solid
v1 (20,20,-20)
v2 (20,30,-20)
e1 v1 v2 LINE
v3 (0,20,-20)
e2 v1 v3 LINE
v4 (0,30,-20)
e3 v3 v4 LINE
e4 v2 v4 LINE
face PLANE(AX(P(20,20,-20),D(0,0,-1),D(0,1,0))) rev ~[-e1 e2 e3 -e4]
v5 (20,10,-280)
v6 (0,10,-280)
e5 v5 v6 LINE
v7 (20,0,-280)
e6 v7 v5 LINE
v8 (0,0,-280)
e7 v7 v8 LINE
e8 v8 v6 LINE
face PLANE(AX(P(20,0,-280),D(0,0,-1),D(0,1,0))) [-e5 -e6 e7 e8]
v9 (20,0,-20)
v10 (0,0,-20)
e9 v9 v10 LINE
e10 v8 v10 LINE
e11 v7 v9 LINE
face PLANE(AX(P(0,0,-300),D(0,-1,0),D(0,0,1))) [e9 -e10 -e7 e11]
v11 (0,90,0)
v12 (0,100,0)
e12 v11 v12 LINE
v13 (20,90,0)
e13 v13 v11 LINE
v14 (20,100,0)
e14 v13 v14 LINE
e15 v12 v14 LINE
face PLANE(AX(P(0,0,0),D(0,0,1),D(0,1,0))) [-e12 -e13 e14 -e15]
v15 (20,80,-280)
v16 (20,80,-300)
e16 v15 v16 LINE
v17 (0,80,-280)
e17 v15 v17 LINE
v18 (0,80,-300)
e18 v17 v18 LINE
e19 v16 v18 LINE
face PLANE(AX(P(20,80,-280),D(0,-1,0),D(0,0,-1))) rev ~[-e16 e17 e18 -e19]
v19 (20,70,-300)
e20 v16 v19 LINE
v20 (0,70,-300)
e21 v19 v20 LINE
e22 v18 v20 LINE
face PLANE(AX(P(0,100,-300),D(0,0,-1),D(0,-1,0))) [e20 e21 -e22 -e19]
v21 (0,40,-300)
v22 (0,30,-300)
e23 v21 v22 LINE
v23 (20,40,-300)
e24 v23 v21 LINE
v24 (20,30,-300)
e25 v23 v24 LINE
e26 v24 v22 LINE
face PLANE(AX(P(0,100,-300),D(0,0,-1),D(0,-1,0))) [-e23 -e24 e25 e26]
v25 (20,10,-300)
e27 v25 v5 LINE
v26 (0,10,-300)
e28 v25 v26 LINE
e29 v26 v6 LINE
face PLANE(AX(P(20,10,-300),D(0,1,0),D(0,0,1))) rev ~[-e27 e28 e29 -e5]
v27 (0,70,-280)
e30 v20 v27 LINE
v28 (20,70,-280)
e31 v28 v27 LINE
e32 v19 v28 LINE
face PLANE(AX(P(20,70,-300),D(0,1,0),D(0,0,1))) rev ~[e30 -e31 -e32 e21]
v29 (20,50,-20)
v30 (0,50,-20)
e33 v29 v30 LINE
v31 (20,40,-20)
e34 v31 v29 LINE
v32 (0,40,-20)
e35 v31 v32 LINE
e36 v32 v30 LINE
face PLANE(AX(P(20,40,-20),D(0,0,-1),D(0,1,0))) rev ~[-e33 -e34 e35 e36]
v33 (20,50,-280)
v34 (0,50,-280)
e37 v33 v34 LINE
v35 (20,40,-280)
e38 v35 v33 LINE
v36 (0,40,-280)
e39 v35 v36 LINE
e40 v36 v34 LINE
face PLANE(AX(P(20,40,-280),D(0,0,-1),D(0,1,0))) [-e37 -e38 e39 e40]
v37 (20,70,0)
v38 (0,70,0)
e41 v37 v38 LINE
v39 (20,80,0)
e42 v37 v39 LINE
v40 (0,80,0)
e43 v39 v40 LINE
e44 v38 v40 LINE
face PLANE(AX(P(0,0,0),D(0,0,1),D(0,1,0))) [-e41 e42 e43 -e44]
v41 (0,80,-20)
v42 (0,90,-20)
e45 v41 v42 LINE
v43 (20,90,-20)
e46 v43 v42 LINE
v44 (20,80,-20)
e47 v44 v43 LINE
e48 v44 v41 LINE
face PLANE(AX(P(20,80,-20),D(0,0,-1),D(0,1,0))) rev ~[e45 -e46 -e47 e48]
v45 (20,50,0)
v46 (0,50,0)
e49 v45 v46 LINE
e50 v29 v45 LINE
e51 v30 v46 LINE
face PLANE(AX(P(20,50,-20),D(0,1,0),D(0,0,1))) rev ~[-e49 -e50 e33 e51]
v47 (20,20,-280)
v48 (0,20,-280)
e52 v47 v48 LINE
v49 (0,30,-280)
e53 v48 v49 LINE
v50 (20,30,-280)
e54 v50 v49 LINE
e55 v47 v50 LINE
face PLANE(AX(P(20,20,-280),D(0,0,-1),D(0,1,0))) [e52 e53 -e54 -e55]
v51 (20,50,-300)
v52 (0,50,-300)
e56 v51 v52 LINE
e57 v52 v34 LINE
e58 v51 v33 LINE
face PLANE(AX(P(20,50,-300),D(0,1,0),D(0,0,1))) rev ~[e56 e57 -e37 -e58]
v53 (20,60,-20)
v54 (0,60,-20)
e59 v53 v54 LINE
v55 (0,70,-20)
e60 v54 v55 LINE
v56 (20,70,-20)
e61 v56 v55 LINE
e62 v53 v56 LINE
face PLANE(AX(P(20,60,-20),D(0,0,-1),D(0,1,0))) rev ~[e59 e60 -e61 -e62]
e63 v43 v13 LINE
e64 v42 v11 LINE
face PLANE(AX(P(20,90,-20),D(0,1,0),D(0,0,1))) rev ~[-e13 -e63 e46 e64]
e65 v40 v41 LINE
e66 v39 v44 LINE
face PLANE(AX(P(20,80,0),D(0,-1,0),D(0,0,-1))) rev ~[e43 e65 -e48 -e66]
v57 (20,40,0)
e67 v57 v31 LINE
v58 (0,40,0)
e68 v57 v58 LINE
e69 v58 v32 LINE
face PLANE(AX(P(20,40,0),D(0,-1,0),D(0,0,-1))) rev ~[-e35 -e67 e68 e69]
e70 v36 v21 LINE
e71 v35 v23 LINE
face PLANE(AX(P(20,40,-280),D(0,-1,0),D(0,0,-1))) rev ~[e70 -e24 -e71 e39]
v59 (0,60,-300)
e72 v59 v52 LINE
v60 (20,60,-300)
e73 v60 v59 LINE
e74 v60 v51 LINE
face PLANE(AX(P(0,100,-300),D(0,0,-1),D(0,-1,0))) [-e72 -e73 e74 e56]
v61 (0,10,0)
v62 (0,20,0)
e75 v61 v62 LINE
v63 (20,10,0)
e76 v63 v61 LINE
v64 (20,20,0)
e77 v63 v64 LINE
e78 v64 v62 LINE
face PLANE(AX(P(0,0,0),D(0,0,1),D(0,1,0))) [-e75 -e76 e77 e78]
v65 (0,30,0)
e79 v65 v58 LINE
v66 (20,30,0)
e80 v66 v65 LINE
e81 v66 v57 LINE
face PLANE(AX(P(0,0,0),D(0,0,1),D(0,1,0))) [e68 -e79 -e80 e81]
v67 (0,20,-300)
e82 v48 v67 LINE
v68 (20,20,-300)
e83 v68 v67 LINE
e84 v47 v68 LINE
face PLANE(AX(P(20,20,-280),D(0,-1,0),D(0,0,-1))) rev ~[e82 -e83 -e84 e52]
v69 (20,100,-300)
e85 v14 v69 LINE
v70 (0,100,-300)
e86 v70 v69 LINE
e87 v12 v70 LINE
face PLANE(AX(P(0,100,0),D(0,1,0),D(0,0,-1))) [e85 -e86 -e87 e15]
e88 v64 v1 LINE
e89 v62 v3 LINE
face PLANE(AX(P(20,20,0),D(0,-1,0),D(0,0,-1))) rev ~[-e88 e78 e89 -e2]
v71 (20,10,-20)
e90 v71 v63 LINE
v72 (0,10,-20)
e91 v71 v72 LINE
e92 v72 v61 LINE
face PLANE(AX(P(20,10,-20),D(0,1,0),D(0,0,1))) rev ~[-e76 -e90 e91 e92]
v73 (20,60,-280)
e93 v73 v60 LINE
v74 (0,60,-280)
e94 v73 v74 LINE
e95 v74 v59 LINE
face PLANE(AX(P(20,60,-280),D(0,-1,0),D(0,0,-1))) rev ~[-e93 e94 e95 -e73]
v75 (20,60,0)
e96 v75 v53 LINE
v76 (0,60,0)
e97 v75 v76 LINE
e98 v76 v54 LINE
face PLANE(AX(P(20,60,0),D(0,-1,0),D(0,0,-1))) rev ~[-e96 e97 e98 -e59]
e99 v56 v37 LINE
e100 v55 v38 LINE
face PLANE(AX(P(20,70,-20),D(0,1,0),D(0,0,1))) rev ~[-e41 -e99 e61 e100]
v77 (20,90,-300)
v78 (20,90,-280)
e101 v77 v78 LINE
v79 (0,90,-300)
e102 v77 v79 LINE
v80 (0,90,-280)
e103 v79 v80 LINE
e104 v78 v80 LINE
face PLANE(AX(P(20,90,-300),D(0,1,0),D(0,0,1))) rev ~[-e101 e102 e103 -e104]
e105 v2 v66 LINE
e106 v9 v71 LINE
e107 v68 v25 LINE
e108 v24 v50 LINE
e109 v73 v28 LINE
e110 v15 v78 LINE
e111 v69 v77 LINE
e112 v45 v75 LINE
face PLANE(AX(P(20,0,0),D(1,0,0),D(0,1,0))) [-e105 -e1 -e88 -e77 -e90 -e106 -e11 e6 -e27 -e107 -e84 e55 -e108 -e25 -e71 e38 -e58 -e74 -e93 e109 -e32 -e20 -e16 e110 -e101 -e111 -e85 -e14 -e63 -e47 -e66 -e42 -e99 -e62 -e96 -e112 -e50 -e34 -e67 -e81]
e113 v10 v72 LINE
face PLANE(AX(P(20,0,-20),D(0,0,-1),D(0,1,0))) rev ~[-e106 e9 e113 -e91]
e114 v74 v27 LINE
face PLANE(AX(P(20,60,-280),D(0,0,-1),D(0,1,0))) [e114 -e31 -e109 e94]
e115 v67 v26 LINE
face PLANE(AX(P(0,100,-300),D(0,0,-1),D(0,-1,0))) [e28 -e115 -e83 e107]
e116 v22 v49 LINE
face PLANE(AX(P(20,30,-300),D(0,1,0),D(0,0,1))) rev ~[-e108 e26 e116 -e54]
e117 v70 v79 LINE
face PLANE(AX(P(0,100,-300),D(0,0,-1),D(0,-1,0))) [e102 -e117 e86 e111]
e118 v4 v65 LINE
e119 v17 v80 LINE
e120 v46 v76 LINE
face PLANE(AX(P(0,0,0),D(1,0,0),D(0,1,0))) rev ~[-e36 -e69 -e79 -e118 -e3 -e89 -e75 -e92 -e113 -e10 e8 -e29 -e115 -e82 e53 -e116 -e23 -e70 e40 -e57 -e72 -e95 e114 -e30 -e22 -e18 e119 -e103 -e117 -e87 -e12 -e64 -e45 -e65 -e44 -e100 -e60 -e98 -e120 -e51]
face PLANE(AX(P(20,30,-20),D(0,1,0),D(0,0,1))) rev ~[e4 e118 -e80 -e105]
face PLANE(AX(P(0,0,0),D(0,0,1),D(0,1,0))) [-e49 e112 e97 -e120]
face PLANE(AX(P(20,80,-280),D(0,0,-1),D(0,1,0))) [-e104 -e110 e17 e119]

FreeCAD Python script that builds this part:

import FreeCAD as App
import Part
import Sketcher
from FreeCAD import Vector


def add_polygon(sketch, points):
    """Adds a closed chain of lines whose ends are joined by coincident constraints."""
    first, n = sketch.GeometryCount, len(points)
    for a, b in zip(points, points[1:] + points[:1]):
        sketch.addGeometry(Part.LineSegment(App.Vector(*a, 0), App.Vector(*b, 0)), False)
    for i in range(n):
        sketch.addConstraint(Sketcher.Constraint("Coincident", first + i, 2, first + (i + 1) % n, 1))

doc = App.newDocument("Part")
body = doc.addObject("PartDesign::Body", "Body")

sketch1 = body.newObject("Sketcher::SketchObject", "Sketch")
sketch1.AttachmentSupport = (doc.getObject("YZ_Plane"), [""])
sketch1.MapMode = "FlatFace"
add_polygon(sketch1, [(100, 0), (0, 0), (0, -300), (100, -300)])
sketch1.addConstraint([
    Sketcher.Constraint("Horizontal", 0),
    Sketcher.Constraint("Vertical", 1),
    Sketcher.Constraint("Horizontal", 2),
    Sketcher.Constraint("Vertical", 3),
    Sketcher.Constraint("Coincident", 0, 2, -1, 1),
    Sketcher.Constraint("DistanceX", 0, 2, 0, 1, 100.0),
    Sketcher.Constraint("DistanceY", 1, 2, 1, 1, 300.0),
])
pad1 = body.newObject("PartDesign::Pad", "Pad")
pad1.Profile = sketch1
pad1.Length = 20

sketch2 = body.newObject("Sketcher::SketchObject", "Sketch001")
sketch2.AttachmentSupport = (doc.getObject("YZ_Plane"), [""])
sketch2.MapMode = "FlatFace"
sketch2.AttachmentOffset = App.Placement(Vector(0, 0, 20), App.Rotation())
add_polygon(sketch2, [(10, 0), (0, 0), (0, -20), (10, -20)])
add_polygon(sketch2, [(30, 0), (20, 0), (20, -20), (30, -20)])
add_polygon(sketch2, [(50, 0), (40, 0), (40, -20), (50, -20)])
add_polygon(sketch2, [(70, 0), (60, 0), (60, -20), (70, -20)])
add_polygon(sketch2, [(90, 0), (80, 0), (80, -20), (90, -20)])
add_polygon(sketch2, [(10, -280), (0, -280), (0, -300), (10, -300)])
add_polygon(sketch2, [(30, -280), (20, -280), (20, -300), (30, -300)])
add_polygon(sketch2, [(50, -280), (40, -280), (40, -300), (50, -300)])
add_polygon(sketch2, [(70, -280), (60, -280), (60, -300), (70, -300)])
add_polygon(sketch2, [(90, -280), (80, -280), (80, -300), (90, -300)])
sketch2.addConstraint([
    Sketcher.Constraint("Horizontal", 0),
    Sketcher.Constraint("Vertical", 1),
    Sketcher.Constraint("Horizontal", 2),
    Sketcher.Constraint("Vertical", 3),
    Sketcher.Constraint("Horizontal", 4),
    Sketcher.Constraint("Vertical", 5),
    Sketcher.Constraint("Horizontal", 6),
    Sketcher.Constraint("Vertical", 7),
    Sketcher.Constraint("Horizontal", 8),
    Sketcher.Constraint("Vertical", 9),
    Sketcher.Constraint("Horizontal", 10),
    Sketcher.Constraint("Vertical", 11),
    Sketcher.Constraint("Horizontal", 12),
    Sketcher.Constraint("Vertical", 13),
    Sketcher.Constraint("Horizontal", 14),
    Sketcher.Constraint("Vertical", 15),
    Sketcher.Constraint("Horizontal", 16),
    Sketcher.Constraint("Vertical", 17),
    Sketcher.Constraint("Horizontal", 18),
    Sketcher.Constraint("Vertical", 19),
    Sketcher.Constraint("Horizontal", 20),
    Sketcher.Constraint("Vertical", 21),
    Sketcher.Constraint("Horizontal", 22),
    Sketcher.Constraint("Vertical", 23),
    Sketcher.Constraint("Horizontal", 24),
    Sketcher.Constraint("Vertical", 25),
    Sketcher.Constraint("Horizontal", 26),
    Sketcher.Constraint("Vertical", 27),
    Sketcher.Constraint("Horizontal", 28),
    Sketcher.Constraint("Vertical", 29),
    Sketcher.Constraint("Horizontal", 30),
    Sketcher.Constraint("Vertical", 31),
    Sketcher.Constraint("Horizontal", 32),
    Sketcher.Constraint("Vertical", 33),
    Sketcher.Constraint("Horizontal", 34),
    Sketcher.Constraint("Vertical", 35),
    Sketcher.Constraint("Horizontal", 36),
    Sketcher.Constraint("Vertical", 37),
    Sketcher.Constraint("Horizontal", 38),
    Sketcher.Constraint("Vertical", 39),
    Sketcher.Constraint("Coincident", 0, 2, -1, 1),
    Sketcher.Constraint("PointOnObject", 4, 2, -1),
    Sketcher.Constraint("PointOnObject", 8, 2, -1),
    Sketcher.Constraint("PointOnObject", 12, 2, -1),
    Sketcher.Constraint("PointOnObject", 16, 2, -1),
    Sketcher.Constraint("PointOnObject", 20, 2, -2),
    Sketcher.Constraint("Horizontal", 2, 2, 5, 2),
    Sketcher.Constraint("Horizontal", 6, 2, 9, 2),
    Sketcher.Constraint("Horizontal", 10, 2, 13, 2),
    Sketcher.Constraint("Horizontal", 14, 2, 17, 2),
    Sketcher.Constraint("Horizontal", 23, 2, 24, 2),
    Sketcher.Constraint("Horizontal", 22, 2, 25, 2),
    Sketcher.Constraint("Horizontal", 27, 2, 28, 2),
    Sketcher.Constraint("Horizontal", 26, 2, 29, 2),
    Sketcher.Constraint("Horizontal", 31, 2, 32, 2),
    Sketcher.Constraint("Horizontal", 30, 2, 33, 2),
    Sketcher.Constraint("Horizontal", 35, 2, 36, 2),
    Sketcher.Constraint("Horizontal", 34, 2, 37, 2),
    Sketcher.Constraint("Vertical", 3, 2, 22, 2),
    Sketcher.Constraint("Vertical", 5, 2, 24, 2),
    Sketcher.Constraint("Vertical", 7, 2, 26, 2),
    Sketcher.Constraint("Vertical", 9, 2, 28, 2),
    Sketcher.Constraint("Vertical", 11, 2, 30, 2),
    Sketcher.Constraint("Vertical", 13, 2, 32, 2),
    Sketcher.Constraint("Vertical", 15, 2, 34, 2),
    Sketcher.Constraint("Vertical", 17, 2, 36, 2),
    Sketcher.Constraint("Vertical", 19, 2, 38, 2),
    Sketcher.Constraint("Equal", 2, 4),
    Sketcher.Constraint("Equal", 6, 8),
    Sketcher.Constraint("Equal", 10, 12),
    Sketcher.Constraint("Equal", 14, 16),
    Sketcher.Constraint("Equal", 19, 21),
    Sketcher.Constraint("DistanceX", 0, 2, 0, 1, 10.0),
    Sketcher.Constraint("DistanceY", 1, 2, 1, 1, 20.0),
    Sketcher.Constraint("DistanceX", -1, 1, 4, 2, 20.0),
    Sketcher.Constraint("DistanceY", 20, 2, -1, 1, 280.0),
    Sketcher.Constraint("DistanceX", 7, 2, 8, 2, 10.0),
    Sketcher.Constraint("DistanceX", 11, 2, 12, 2, 10.0),
    Sketcher.Constraint("DistanceX", 15, 2, 16, 2, 10.0),
])
pocket1 = body.newObject("PartDesign::Pocket", "Pocket")
pocket1.Profile = sketch2
pocket1.Length = 64.25

doc.recompute()
